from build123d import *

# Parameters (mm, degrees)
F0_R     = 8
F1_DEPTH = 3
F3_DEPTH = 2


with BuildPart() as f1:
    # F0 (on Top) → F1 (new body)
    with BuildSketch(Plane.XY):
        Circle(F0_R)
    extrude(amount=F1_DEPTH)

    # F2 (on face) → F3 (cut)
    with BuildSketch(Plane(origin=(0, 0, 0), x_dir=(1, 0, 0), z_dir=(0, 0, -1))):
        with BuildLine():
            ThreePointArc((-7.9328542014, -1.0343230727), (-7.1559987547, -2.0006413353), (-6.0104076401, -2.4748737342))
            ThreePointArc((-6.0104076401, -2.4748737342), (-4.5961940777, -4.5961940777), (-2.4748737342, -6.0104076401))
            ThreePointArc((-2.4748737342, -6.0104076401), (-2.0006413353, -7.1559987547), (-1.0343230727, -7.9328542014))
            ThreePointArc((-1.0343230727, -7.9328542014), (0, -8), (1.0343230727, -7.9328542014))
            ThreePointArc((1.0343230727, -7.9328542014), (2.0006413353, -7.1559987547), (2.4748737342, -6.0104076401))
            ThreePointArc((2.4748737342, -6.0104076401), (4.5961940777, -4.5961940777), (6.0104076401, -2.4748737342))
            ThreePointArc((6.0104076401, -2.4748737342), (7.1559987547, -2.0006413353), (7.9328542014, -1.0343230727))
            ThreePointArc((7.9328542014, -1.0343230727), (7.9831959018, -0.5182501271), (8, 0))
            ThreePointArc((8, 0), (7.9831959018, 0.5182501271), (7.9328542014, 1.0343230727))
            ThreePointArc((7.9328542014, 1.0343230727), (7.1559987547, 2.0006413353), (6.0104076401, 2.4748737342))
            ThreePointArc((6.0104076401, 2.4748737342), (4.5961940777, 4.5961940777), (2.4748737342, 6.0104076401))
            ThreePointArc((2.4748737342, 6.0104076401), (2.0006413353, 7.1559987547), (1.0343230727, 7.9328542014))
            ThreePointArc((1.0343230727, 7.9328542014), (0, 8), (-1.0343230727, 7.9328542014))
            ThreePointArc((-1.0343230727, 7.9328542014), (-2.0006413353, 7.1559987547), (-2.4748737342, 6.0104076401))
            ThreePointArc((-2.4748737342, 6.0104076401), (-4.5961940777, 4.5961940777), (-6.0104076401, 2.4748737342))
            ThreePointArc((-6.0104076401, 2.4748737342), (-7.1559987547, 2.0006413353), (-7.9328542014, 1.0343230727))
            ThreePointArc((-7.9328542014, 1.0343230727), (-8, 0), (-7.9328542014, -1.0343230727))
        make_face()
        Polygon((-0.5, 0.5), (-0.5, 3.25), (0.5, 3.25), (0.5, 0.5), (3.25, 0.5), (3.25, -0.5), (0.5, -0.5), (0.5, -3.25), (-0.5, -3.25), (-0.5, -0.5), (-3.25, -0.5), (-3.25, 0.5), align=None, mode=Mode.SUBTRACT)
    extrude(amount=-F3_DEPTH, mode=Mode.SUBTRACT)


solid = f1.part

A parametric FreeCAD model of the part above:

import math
import FreeCAD as App
import Part
import Sketcher
Q = App.Units.Quantity

doc = App.newDocument("Part")
params = doc.addObject("Spreadsheet::Sheet", "Params")
for row, (alias, value) in enumerate([
    ("sketch1_diameter", "16 mm"),
    ("pad1_length", "3 mm"),
    ("sketch2_radius", "8 mm"),
    ("sketch2_radius2", "2.5 mm"),
    ("sketch2_radius3", "6.5 mm"),
    ("sketch2_width", "1 mm"),
    ("sketch2_width2", "2.75 mm"),
    ("pocket1_length", "2 mm"),
], start=1):
    params.set(f"A{row}", alias)
    params.set(f"B{row}", "=" + value)
    params.setAlias(f"B{row}", alias)

body = doc.addObject("PartDesign::Body", "Body")

# Sketch on XY plane
sketch1 = doc.addObject("Sketcher::SketchObject", "Sketch")
body.addObject(sketch1)
sketch1.AttachmentSupport = (doc.XY_Plane, [""])
sketch1.MapMode = "FlatFace"
sketch1.addGeometry(Part.Circle(App.Vector(0, 0, 0), App.Vector(0, 0, 1), 8), False)
sketch1.addConstraint([
    Sketcher.Constraint("Coincident", 0, 3, -1, 1),
    Sketcher.Constraint("Diameter", 0, Q("16 mm")),
])
sketch1.setExpression("Constraints[1]", "Params.sketch1_diameter")
pad1 = doc.addObject("PartDesign::Pad", "Pad")
body.addObject(pad1)
pad1.Profile = sketch1
pad1.setExpression("Length", "Params.pad1_length")

# Sketch on XY plane
sketch2 = doc.addObject("Sketcher::SketchObject", "Sketch001")
body.addObject(sketch2)
sketch2.AttachmentSupport = (doc.XY_Plane, [""])
sketch2.MapMode = "FlatFace"
sketch2.addGeometry([
    Part.ArcOfCircle(Part.Circle(App.Vector(-5.656854, 0, 0), App.Vector(0, 0, 1), 2.5), math.radians(98.130102), math.radians(155.560685)),  # 0
    Part.ArcOfCircle(Part.Circle(App.Vector(0, 0, 0), App.Vector(0, 0, 1), 6.5), math.radians(112.380135), math.radians(157.619865)),  # 1
    Part.ArcOfCircle(Part.Circle(App.Vector(0, 5.656854, 0), App.Vector(0, 0, 1), 2.5), math.radians(114.439315), math.radians(171.869898)),  # 2
    Part.ArcOfCircle(Part.Circle(App.Vector(0, 0, 0), App.Vector(0, 0, 1), 8), math.radians(82.571412), math.radians(97.428588)),  # 3
    Part.ArcOfCircle(Part.Circle(App.Vector(0, 5.656854, 0), App.Vector(0, 0, 1), 2.5), math.radians(8.130102), math.radians(65.560685)),  # 4
    Part.ArcOfCircle(Part.Circle(App.Vector(0, 0, 0), App.Vector(0, 0, 1), 6.5), math.radians(22.380135), math.radians(67.619865)),  # 5
    Part.ArcOfCircle(Part.Circle(App.Vector(5.656854, 0, 0), App.Vector(0, 0, 1), 2.5), math.radians(24.439315), math.radians(81.869898)),  # 6
    Part.ArcOfCircle(Part.Circle(App.Vector(0, 0, 0), App.Vector(0, 0, 1), 8), math.radians(0), math.radians(7.428588)),  # 7
    Part.ArcOfCircle(Part.Circle(App.Vector(0, 0, 0), App.Vector(0, 0, 1), 8), math.radians(-7.428588), math.radians(0)),  # 8
    Part.ArcOfCircle(Part.Circle(App.Vector(5.656854, 0, 0), App.Vector(0, 0, 1), 2.5), math.radians(-81.869898), math.radians(-24.439315)),  # 9
    Part.ArcOfCircle(Part.Circle(App.Vector(0, 0, 0), App.Vector(0, 0, 1), 6.5), math.radians(-67.619865), math.radians(-22.380135)),  # 10
    Part.ArcOfCircle(Part.Circle(App.Vector(0, -5.656854, 0), App.Vector(0, 0, 1), 2.5), math.radians(-65.560685), math.radians(-8.130102)),  # 11
    Part.ArcOfCircle(Part.Circle(App.Vector(0, 0, 0), App.Vector(0, 0, 1), 8), math.radians(-97.428588), math.radians(-82.571412)),  # 12
    Part.ArcOfCircle(Part.Circle(App.Vector(0, -5.656854, 0), App.Vector(0, 0, 1), 2.5), math.radians(-171.869898), math.radians(-114.439315)),  # 13
    Part.ArcOfCircle(Part.Circle(App.Vector(0, 0, 0), App.Vector(0, 0, 1), 6.5), math.radians(-157.619865), math.radians(-112.380135)),  # 14
    Part.ArcOfCircle(Part.Circle(App.Vector(-5.656854, 0, 0), App.Vector(0, 0, 1), 2.5), math.radians(-155.560685), math.radians(-98.130102)),  # 15
    Part.ArcOfCircle(Part.Circle(App.Vector(0, 0, 0), App.Vector(0, 0, 1), 8), math.radians(172.571412), math.radians(187.428588)),  # 16
    Part.LineSegment(App.Vector(-3.25, -0.5, 0), App.Vector(-0.5, -0.5, 0)),  # 17
    Part.LineSegment(App.Vector(-0.5, -0.5, 0), App.Vector(-0.5, -3.25, 0)),  # 18
    Part.LineSegment(App.Vector(-0.5, -3.25, 0), App.Vector(0.5, -3.25, 0)),  # 19
    Part.LineSegment(App.Vector(0.5, -3.25, 0), App.Vector(0.5, -0.5, 0)),  # 20
    Part.LineSegment(App.Vector(0.5, -0.5, 0), App.Vector(3.25, -0.5, 0)),  # 21
    Part.LineSegment(App.Vector(3.25, -0.5, 0), App.Vector(3.25, 0.5, 0)),  # 22
    Part.LineSegment(App.Vector(3.25, 0.5, 0), App.Vector(0.5, 0.5, 0)),  # 23
    Part.LineSegment(App.Vector(0.5, 0.5, 0), App.Vector(0.5, 3.25, 0)),  # 24
    Part.LineSegment(App.Vector(0.5, 3.25, 0), App.Vector(-0.5, 3.25, 0)),  # 25
    Part.LineSegment(App.Vector(-0.5, 3.25, 0), App.Vector(-0.5, 0.5, 0)),  # 26
    Part.LineSegment(App.Vector(-0.5, 0.5, 0), App.Vector(-3.25, 0.5, 0)),  # 27
    Part.LineSegment(App.Vector(-3.25, 0.5, 0), App.Vector(-3.25, -0.5, 0)),  # 28
], False)
sketch2.addConstraint([
    Sketcher.Constraint("Coincident", 0, 1, 1, 2),
    Sketcher.Constraint("Coincident", 1, 1, 2, 2),
    Sketcher.Constraint("Coincident", 2, 1, 3, 2),
    Sketcher.Constraint("Coincident", 3, 1, 4, 2),
    Sketcher.Constraint("Coincident", 4, 1, 5, 2),
    Sketcher.Constraint("Coincident", 5, 1, 6, 2),
    Sketcher.Constraint("Coincident", 6, 1, 7, 2),
    Sketcher.Constraint("Tangent", 7, 1, 8, 2),
    Sketcher.Constraint("Coincident", 8, 1, 9, 2),
    Sketcher.Constraint("Coincident", 9, 1, 10, 2),
    Sketcher.Constraint("Coincident", 10, 1, 11, 2),
    Sketcher.Constraint("Coincident", 11, 1, 12, 2),
    Sketcher.Constraint("Coincident", 12, 1, 13, 2),
    Sketcher.Constraint("Coincident", 13, 1, 14, 2),
    Sketcher.Constraint("Coincident", 14, 1, 15, 2),
    Sketcher.Constraint("Coincident", 15, 1, 16, 2),
    Sketcher.Constraint("Coincident", 16, 1, 0, 2),
    Sketcher.Constraint("Coincident", 17, 2, 18, 1),
    Sketcher.Constraint("Coincident", 18, 2, 19, 1),
    Sketcher.Constraint("Coincident", 19, 2, 20, 1),
    Sketcher.Constraint("Coincident", 20, 2, 21, 1),
    Sketcher.Constraint("Coincident", 21, 2, 22, 1),
    Sketcher.Constraint("Coincident", 22, 2, 23, 1),
    Sketcher.Constraint("Coincident", 23, 2, 24, 1),
    Sketcher.Constraint("Coincident", 24, 2, 25, 1),
    Sketcher.Constraint("Coincident", 25, 2, 26, 1),
    Sketcher.Constraint("Coincident", 26, 2, 27, 1),
    Sketcher.Constraint("Coincident", 27, 2, 28, 1),
    Sketcher.Constraint("Coincident", 28, 2, 17, 1),
    Sketcher.Constraint("Horizontal", 17),
    Sketcher.Constraint("Vertical", 18),
    Sketcher.Constraint("Horizontal", 19),
    Sketcher.Constraint("Vertical", 20),
    Sketcher.Constraint("Horizontal", 21),
    Sketcher.Constraint("Vertical", 22),
    Sketcher.Constraint("Horizontal", 23),
    Sketcher.Constraint("Vertical", 24),
    Sketcher.Constraint("Horizontal", 25),
    Sketcher.Constraint("Vertical", 26),
    Sketcher.Constraint("Horizontal", 27),
    Sketcher.Constraint("Vertical", 28),
    Sketcher.Constraint("Coincident", 1, 3, -1, 1),
    Sketcher.Constraint("Coincident", 3, 3, -1, 1),
    Sketcher.Constraint("Coincident", 5, 3, -1, 1),
    Sketcher.Constraint("Coincident", 7, 3, -1, 1),
    Sketcher.Constraint("Coincident", 10, 3, -1, 1),
    Sketcher.Constraint("Coincident", 12, 3, -1, 1),
    Sketcher.Constraint("Coincident", 14, 3, -1, 1),
    Sketcher.Constraint("Coincident", 16, 3, -1, 1),
    Sketcher.Constraint("Coincident", 4, 3, 2, 3),
    Sketcher.Constraint("Coincident", 9, 3, 6, 3),
    Sketcher.Constraint("Coincident", 13, 3, 11, 3),
    Sketcher.Constraint("Coincident", 15, 3, 0, 3),
    Sketcher.Constraint("Equal", 0, 2),
    Sketcher.Constraint("Equal", 2, 4),
    Sketcher.Constraint("Equal", 1, 5),
    Sketcher.Constraint("Equal", 4, 6),
    Sketcher.Constraint("Equal", 3, 7),
    Sketcher.Constraint("Equal", 7, 8),
    Sketcher.Constraint("Equal", 6, 9),
    Sketcher.Constraint("Equal", 5, 10),
    Sketcher.Constraint("Equal", 9, 11),
    Sketcher.Constraint("Equal", 8, 12),
    Sketcher.Constraint("Equal", 11, 13),
    Sketcher.Constraint("Equal", 10, 14),
    Sketcher.Constraint("Equal", 13, 15),
    Sketcher.Constraint("Equal", 12, 16),
    Sketcher.Constraint("Symmetric", 0, 3, 6, 3, -1, 1),
    Sketcher.Constraint("Symmetric", 2, 3, 11, 3, -1, 1),
    Sketcher.Constraint("Symmetric", 17, 2, 23, 2, -1, 1),
    Sketcher.Constraint("Symmetric", 19, 2, 25, 2, -1, 1),
    Sketcher.Constraint("Symmetric", 21, 2, 27, 2, -1, 1),
    Sketcher.Constraint("Symmetric", 17, 2, 20, 2, -2),
    Sketcher.Constraint("PointOnObject", 0, 3, -1),
    Sketcher.Constraint("PointOnObject", 2, 3, -2),
    Sketcher.Constraint("PointOnObject", 7, 1, -1),
    Sketcher.Constraint("Equal", 27, 18),
    Sketcher.Constraint("Equal", 25, 22),
    Sketcher.Constraint("Radius", 3, Q("8 mm")),
    Sketcher.Constraint("Radius", 0, Q("2.5 mm")),
    Sketcher.Constraint("Radius", 1, Q("6.5 mm")),
    Sketcher.Constraint("DistanceX", 19, 1, 19, 2, Q("1 mm")),
    Sketcher.Constraint("DistanceX", 17, 1, 17, 2, Q("2.75 mm")),
    Sketcher.Constraint("DistanceY", 2, 3, 2, 1, Q("2.276 mm")),
    Sketcher.Constraint("DistanceX", 6, 3, 6, 1, Q("2.276 mm")),
])
sketch2.setExpression("Constraints[78]", "Params.sketch2_radius")
sketch2.setExpression("Constraints[79]", "Params.sketch2_radius2")
sketch2.setExpression("Constraints[80]", "Params.sketch2_radius3")
sketch2.setExpression("Constraints[81]", "Params.sketch2_width")
sketch2.setExpression("Constraints[82]", "Params.sketch2_width2")
pocket1 = doc.addObject("PartDesign::Pocket", "Pocket")
body.addObject(pocket1)
pocket1.Profile = sketch2
pocket1.setExpression("Length", "Params.pocket1_length")
pocket1.Reversed = True

doc.recompute()
